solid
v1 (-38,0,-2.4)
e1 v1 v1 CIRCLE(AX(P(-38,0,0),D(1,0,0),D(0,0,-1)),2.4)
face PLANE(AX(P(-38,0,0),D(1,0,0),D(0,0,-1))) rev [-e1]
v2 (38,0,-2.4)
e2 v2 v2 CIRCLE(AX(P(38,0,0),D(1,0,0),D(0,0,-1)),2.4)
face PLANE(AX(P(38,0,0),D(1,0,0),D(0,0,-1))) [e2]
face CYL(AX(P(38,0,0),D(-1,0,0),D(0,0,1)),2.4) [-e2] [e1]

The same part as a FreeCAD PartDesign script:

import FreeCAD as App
import Part
import Sketcher

doc = App.newDocument("Part")
body = doc.addObject("PartDesign::Body", "Body")

sketch1 = body.newObject("Sketcher::SketchObject", "Sketch")
sketch1.AttachmentSupport = (doc.getObject("YZ_Plane"), [""])
sketch1.MapMode = "FlatFace"
sketch1.addGeometry(Part.Circle(App.Vector(0, 0, 0), App.Vector(0, 0, 1), 2.4), False)
sketch1.addConstraint(Sketcher.Constraint("Coincident", 0, 3, -1, 1))
sketch1.addConstraint(Sketcher.Constraint("Diameter", 0, 4.8))
pad1 = body.newObject("PartDesign::Pad", "Pad")
pad1.Profile = sketch1
pad1.Length = 76
pad1.Midplane = True

doc.recompute()
